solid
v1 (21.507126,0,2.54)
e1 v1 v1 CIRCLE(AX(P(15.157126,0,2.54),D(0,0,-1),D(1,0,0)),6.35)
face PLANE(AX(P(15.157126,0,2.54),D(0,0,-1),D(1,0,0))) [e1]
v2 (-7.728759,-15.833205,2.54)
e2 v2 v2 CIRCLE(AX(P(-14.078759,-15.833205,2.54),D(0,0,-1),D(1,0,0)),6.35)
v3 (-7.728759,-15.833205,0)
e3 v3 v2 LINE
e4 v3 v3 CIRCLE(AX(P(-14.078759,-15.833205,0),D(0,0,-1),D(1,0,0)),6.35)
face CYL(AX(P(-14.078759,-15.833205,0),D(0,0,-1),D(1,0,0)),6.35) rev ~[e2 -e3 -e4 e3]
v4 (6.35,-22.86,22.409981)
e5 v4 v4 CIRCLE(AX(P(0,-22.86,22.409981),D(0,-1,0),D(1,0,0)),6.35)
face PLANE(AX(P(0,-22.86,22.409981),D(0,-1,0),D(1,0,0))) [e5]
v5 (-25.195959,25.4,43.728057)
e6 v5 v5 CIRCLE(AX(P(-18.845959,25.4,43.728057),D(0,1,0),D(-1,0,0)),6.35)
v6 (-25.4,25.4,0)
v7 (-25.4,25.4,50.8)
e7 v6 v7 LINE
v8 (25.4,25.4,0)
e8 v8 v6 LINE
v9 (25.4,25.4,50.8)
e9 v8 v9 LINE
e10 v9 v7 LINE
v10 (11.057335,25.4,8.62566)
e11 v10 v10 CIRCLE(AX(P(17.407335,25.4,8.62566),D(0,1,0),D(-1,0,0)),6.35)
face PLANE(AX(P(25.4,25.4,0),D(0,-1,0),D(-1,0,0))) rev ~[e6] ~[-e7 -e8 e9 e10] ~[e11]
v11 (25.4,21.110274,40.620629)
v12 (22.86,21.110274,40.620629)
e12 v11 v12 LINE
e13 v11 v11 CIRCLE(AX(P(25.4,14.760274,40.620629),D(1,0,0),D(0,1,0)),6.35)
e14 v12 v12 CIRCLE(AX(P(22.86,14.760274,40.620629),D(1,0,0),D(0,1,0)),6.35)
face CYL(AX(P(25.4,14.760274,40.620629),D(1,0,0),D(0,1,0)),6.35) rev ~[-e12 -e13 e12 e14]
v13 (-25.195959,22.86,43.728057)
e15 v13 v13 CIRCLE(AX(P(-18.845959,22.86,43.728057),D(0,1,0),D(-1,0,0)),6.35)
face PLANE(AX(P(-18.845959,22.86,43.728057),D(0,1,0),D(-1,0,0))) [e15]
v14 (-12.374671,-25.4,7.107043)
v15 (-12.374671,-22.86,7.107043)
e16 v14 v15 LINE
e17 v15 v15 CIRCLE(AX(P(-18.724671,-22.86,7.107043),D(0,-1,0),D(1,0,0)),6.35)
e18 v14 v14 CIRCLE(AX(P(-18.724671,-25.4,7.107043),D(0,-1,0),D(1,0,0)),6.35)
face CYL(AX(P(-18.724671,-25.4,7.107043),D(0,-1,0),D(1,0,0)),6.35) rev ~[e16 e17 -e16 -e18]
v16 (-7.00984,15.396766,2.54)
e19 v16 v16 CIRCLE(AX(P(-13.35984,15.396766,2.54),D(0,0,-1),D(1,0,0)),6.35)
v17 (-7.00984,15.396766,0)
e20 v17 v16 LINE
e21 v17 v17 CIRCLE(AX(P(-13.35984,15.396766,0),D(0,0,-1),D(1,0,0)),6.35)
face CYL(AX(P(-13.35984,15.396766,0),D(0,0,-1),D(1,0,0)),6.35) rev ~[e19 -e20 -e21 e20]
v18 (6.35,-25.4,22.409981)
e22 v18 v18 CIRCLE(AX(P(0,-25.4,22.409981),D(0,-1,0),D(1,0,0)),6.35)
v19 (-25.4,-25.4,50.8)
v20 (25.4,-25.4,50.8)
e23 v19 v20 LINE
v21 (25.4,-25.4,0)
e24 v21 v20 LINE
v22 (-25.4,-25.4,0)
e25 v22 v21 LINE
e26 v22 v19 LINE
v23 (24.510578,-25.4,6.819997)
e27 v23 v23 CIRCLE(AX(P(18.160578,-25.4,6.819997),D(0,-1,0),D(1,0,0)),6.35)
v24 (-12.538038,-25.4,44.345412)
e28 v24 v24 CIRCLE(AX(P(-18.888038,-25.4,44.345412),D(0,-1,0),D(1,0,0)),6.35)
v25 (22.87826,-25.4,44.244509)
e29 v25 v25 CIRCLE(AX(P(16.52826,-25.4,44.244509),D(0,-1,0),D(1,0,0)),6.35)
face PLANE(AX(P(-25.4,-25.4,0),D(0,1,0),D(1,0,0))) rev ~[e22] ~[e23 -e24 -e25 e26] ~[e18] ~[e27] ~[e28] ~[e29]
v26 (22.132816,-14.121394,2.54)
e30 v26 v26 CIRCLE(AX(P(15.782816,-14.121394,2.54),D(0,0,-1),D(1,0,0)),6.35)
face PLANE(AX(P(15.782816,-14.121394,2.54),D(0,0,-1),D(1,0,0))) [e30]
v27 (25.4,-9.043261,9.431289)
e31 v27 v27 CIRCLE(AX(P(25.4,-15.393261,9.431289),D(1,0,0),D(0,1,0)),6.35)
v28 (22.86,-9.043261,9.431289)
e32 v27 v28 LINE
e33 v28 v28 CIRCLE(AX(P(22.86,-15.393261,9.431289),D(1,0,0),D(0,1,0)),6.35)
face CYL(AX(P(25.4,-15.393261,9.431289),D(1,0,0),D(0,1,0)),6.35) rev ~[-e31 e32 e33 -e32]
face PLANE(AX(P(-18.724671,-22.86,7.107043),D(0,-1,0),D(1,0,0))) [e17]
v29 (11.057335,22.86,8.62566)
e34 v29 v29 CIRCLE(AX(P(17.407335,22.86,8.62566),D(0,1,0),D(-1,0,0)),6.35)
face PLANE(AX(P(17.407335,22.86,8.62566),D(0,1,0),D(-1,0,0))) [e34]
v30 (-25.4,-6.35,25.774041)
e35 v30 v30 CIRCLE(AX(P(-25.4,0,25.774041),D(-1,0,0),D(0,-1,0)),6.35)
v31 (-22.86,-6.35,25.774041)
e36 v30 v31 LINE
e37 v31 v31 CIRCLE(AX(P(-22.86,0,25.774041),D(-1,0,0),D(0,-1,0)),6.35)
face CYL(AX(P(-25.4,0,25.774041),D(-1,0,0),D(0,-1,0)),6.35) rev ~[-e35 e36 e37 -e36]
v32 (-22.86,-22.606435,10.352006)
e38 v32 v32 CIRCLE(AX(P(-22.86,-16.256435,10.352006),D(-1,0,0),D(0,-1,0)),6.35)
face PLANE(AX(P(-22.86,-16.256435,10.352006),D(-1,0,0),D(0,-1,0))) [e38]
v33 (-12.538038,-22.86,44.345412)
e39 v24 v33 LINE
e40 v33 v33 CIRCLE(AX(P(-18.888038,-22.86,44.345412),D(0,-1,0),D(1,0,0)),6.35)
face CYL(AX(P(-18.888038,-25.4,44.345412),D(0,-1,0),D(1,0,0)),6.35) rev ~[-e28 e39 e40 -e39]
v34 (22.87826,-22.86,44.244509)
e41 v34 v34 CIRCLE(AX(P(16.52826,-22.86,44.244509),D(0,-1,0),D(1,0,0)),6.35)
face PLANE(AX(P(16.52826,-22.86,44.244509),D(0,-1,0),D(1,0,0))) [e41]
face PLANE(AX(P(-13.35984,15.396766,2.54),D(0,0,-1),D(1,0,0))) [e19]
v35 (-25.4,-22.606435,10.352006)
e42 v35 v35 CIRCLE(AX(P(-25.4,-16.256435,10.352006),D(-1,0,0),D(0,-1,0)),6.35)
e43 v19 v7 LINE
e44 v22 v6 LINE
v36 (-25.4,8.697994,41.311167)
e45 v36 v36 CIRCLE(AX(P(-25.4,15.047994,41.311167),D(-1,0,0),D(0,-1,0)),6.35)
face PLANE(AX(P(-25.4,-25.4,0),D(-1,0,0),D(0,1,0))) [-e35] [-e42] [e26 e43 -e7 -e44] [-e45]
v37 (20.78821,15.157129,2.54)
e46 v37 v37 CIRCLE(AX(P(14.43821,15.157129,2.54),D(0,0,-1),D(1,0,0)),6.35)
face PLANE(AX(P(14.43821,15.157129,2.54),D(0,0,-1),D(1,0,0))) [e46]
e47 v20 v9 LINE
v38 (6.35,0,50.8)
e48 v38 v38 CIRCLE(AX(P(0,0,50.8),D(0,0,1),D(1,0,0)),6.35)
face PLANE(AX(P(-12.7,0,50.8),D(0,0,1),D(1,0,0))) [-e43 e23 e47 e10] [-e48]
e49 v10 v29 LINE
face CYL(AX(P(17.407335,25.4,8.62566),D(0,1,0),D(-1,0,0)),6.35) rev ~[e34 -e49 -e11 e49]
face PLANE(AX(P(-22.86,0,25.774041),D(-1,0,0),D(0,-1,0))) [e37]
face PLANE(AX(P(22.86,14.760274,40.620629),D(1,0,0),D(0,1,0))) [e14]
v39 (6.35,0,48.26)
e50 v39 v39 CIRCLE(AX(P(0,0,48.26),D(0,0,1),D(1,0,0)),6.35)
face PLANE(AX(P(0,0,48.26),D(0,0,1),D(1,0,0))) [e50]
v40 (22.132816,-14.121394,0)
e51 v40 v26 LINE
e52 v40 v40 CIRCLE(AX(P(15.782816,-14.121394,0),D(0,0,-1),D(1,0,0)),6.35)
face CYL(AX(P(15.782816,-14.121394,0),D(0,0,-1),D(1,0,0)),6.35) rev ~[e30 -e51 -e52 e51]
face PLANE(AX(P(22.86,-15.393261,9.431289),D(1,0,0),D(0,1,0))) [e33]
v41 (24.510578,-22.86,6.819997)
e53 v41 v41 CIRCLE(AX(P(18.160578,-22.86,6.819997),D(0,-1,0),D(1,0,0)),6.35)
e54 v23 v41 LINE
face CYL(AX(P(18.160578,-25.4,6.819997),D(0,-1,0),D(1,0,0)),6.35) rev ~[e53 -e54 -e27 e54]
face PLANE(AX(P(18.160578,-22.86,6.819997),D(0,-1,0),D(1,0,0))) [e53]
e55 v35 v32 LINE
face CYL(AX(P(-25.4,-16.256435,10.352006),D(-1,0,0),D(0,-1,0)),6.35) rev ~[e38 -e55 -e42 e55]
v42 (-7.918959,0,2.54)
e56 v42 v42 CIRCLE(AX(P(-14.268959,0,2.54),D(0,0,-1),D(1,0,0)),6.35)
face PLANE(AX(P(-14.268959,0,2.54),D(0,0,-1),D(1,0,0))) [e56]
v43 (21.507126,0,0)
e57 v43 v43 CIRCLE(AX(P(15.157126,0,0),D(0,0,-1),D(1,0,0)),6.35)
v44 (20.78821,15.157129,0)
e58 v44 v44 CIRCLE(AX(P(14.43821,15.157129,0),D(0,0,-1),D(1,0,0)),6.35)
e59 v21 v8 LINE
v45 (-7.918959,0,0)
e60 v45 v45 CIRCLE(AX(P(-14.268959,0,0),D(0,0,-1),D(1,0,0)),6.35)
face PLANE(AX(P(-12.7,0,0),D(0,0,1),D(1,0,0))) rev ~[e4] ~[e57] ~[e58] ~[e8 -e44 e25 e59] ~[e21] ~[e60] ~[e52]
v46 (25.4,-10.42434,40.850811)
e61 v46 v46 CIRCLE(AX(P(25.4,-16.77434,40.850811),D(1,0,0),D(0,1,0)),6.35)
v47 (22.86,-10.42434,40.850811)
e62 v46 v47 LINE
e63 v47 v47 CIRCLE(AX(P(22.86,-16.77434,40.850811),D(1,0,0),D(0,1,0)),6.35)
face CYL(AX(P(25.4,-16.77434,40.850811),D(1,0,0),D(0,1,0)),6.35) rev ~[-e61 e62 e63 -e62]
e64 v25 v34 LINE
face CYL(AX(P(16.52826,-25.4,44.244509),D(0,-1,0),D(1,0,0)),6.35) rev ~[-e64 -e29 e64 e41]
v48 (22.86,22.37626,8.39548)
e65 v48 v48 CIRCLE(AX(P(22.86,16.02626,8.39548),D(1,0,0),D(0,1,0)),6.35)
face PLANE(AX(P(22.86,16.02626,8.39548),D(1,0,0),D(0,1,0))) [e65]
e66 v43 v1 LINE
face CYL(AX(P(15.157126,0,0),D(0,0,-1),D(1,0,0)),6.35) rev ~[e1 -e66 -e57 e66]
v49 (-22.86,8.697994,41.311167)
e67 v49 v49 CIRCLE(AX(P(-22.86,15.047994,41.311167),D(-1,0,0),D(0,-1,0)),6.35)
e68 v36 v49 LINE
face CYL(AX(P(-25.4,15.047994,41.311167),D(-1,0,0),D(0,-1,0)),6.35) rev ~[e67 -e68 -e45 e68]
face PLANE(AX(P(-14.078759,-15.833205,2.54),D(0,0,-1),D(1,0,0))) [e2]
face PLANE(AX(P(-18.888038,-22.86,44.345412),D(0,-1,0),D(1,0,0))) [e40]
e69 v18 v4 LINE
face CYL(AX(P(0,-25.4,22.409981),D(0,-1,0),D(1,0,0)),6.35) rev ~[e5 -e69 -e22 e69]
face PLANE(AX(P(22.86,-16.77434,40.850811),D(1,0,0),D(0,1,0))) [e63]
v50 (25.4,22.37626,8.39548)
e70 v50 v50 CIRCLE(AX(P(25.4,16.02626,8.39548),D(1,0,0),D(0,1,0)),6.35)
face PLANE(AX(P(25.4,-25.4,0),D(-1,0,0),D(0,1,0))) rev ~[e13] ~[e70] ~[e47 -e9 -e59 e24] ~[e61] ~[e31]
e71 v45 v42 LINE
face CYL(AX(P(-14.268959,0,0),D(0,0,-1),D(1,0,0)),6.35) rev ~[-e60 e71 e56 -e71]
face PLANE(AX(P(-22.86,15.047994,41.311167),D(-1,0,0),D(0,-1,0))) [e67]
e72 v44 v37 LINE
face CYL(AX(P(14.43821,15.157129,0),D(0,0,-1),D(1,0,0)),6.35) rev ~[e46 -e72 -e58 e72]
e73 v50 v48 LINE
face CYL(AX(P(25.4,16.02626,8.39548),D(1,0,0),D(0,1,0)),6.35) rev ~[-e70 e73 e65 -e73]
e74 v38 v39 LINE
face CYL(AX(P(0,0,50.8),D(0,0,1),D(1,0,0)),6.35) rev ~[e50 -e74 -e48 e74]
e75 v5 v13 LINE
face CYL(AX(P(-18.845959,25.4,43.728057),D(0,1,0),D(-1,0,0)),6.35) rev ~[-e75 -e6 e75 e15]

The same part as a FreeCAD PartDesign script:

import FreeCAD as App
import Part
import Sketcher
Q = App.Units.Quantity

doc = App.newDocument("Part")
body = doc.addObject("PartDesign::Body", "Body")

# Sketch on XY plane
sketch1 = body.newObject("Sketcher::SketchObject", "Sketch")
sketch1.AttachmentSupport = (doc.getObject("XY_Plane"), [""])
sketch1.MapMode = "FlatFace"
sketch1.addGeometry(Part.LineSegment(App.Vector(-25, 25, 0), App.Vector(-25, -25, 0)), False)
sketch1.addGeometry(Part.LineSegment(App.Vector(-25, -25, 0), App.Vector(25, -25, 0)), False)
sketch1.addGeometry(Part.LineSegment(App.Vector(25, -25, 0), App.Vector(25, 25, 0)), False)
sketch1.addGeometry(Part.LineSegment(App.Vector(25, 25, 0), App.Vector(-25, 25, 0)), False)
sketch1.addConstraint(Sketcher.Constraint("Coincident", 0, 2, 1, 1))
sketch1.addConstraint(Sketcher.Constraint("Coincident", 1, 2, 2, 1))
sketch1.addConstraint(Sketcher.Constraint("Coincident", 2, 2, 3, 1))
sketch1.addConstraint(Sketcher.Constraint("Coincident", 3, 2, 0, 1))
sketch1.addConstraint(Sketcher.Constraint("Vertical", 0))
sketch1.addConstraint(Sketcher.Constraint("Horizontal", 1))
sketch1.addConstraint(Sketcher.Constraint("Vertical", 2))
sketch1.addConstraint(Sketcher.Constraint("Horizontal", 3))
sketch1.addConstraint(Sketcher.Constraint("Symmetric", 0, 2, 2, 2, -1, 1))
sketch1.addConstraint(Sketcher.Constraint("Equal", 3, 0))
sketch1.addConstraint(Sketcher.Constraint("DistanceX", 1, 1, 1, 2, Q("2 in")))
pad1 = body.newObject("PartDesign::Pad", "Pad")
pad1.Profile = sketch1
pad1.Length = Q("2 in")

# Sketch on XY plane
sketch2 = body.newObject("Sketcher::SketchObject", "Sketch001")
sketch2.AttachmentSupport = (doc.getObject("XY_Plane"), [""])
sketch2.MapMode = "FlatFace"
sketch2.AttachmentOffset = App.Placement(App.Vector(0, 0, 2 * 25.4), App.Rotation())
sketch2.addGeometry(Part.Circle(App.Vector(0, 0, 0), App.Vector(0, 0, 1), 6), False)
sketch2.addConstraint(Sketcher.Constraint("Coincident", 0, 3, -1, 1))
sketch2.addConstraint(Sketcher.Constraint("Diameter", 0, Q("0.5 in")))
pocket1 = body.newObject("PartDesign::Pocket", "Pocket")
pocket1.Profile = sketch2
pocket1.Length = Q("0.1 in")

# Sketch on XY plane
sketch3 = body.newObject("Sketcher::SketchObject", "Sketch002")
sketch3.AttachmentSupport = (doc.getObject("XY_Plane"), [""])
sketch3.MapMode = "FlatFace"
sketch3.addGeometry(Part.Circle(App.Vector(16, -14, 0), App.Vector(0, 0, 1), 6), False)
sketch3.addGeometry(Part.Circle(App.Vector(-14, -16, 0), App.Vector(0, 0, 1), 6), False)
sketch3.addGeometry(Part.Circle(App.Vector(15, 0, 0), App.Vector(0, 0, 1), 6), False)
sketch3.addGeometry(Part.Circle(App.Vector(-14, 0, 0), App.Vector(0, 0, 1), 6), False)
sketch3.addGeometry(Part.Circle(App.Vector(-13, 15, 0), App.Vector(0, 0, 1), 6), False)
sketch3.addGeometry(Part.Circle(App.Vector(14, 15, 0), App.Vector(0, 0, 1), 6), False)
sketch3.addConstraint(Sketcher.Constraint("Equal", 0, 1))
sketch3.addConstraint(Sketcher.Constraint("Equal", 1, 2))
sketch3.addConstraint(Sketcher.Constraint("Equal", 2, 3))
sketch3.addConstraint(Sketcher.Constraint("Equal", 3, 4))
sketch3.addConstraint(Sketcher.Constraint("Equal", 4, 5))
sketch3.addConstraint(Sketcher.Constraint("PointOnObject", 2, 3, -1))
sketch3.addConstraint(Sketcher.Constraint("PointOnObject", 3, 3, -1))
sketch3.addConstraint(Sketcher.Constraint("Diameter", 0, Q("0.5 in")))
sketch3.addConstraint(Sketcher.Constraint("DistanceX", 3, 3, 1, 3, Q("0.1902 mm")))
sketch3.addConstraint(Sketcher.Constraint("DistanceX", 1, 3, -1, 1, Q("14.078759 mm")))
sketch3.addConstraint(Sketcher.Constraint("DistanceX", 4, 3, -1, 1, Q("13.35984 mm")))
sketch3.addConstraint(Sketcher.Constraint("DistanceX", -1, 1, 5, 3, Q("14.43821 mm")))
sketch3.addConstraint(Sketcher.Constraint("DistanceY", -1, 1, 5, 3, Q("15.157129 mm")))
sketch3.addConstraint(Sketcher.Constraint("DistanceY", 1, 3, 0, 3, Q("1.711811 mm")))
sketch3.addConstraint(Sketcher.Constraint("DistanceX", 2, 3, 0, 3, Q("0.62569 mm")))
sketch3.addConstraint(Sketcher.Constraint("DistanceY", 1, 3, 4, 3, Q("31.229971 mm")))
sketch3.addConstraint(Sketcher.Constraint("DistanceX", -1, 1, 0, 3, Q("15.782816 mm")))
sketch3.addConstraint(Sketcher.Constraint("DistanceY", 0, 3, -1, 1, Q("14.121394 mm")))
pocket2 = body.newObject("PartDesign::Pocket", "Pocket001")
pocket2.Profile = sketch3
pocket2.Length = Q("0.1 in")
pocket2.Reversed = True

# Sketch on XZ plane
sketch4 = body.newObject("Sketcher::SketchObject", "Sketch003")
sketch4.AttachmentSupport = (doc.getObject("XZ_Plane"), [""])
sketch4.MapMode = "FlatFace"
sketch4.AttachmentOffset = App.Placement(App.Vector(0, 0, 1 * 25.4), App.Rotation())
sketch4.addGeometry(Part.Circle(App.Vector(18, 7, 0), App.Vector(0, 0, 1), 6), False)
sketch4.addGeometry(Part.Circle(App.Vector(-19, 7, 0), App.Vector(0, 0, 1), 6), False)
sketch4.addGeometry(Part.Circle(App.Vector(0, 22, 0), App.Vector(0, 0, 1), 6), False)
sketch4.addGeometry(Part.Circle(App.Vector(17, 44, 0), App.Vector(0, 0, 1), 6), False)
sketch4.addGeometry(Part.Circle(App.Vector(-19, 44, 0), App.Vector(0, 0, 1), 6), False)
sketch4.addConstraint(Sketcher.Constraint("Equal", 0, 1))
sketch4.addConstraint(Sketcher.Constraint("Equal", 1, 2))
sketch4.addConstraint(Sketcher.Constraint("Equal", 2, 3))
sketch4.addConstraint(Sketcher.Constraint("Equal", 3, 4))
sketch4.addConstraint(Sketcher.Constraint("PointOnObject", 2, 3, -2))
sketch4.addConstraint(Sketcher.Constraint("Diameter", 0, Q("0.5 in")))
sketch4.addConstraint(Sketcher.Constraint("DistanceX", 1, 3, -1, 1, Q("18.724671 mm")))
sketch4.addConstraint(Sketcher.Constraint("DistanceY", -1, 1, 2, 3, Q("22.409981 mm")))
sketch4.addConstraint(Sketcher.Constraint("DistanceX", -1, 1, 3, 3, Q("16.52826 mm")))
sketch4.addConstraint(Sketcher.Constraint("DistanceY", -1, 1, 3, 3, Q("44.244509 mm")))
sketch4.addConstraint(Sketcher.Constraint("DistanceX", 1, 3, 0, 3, Q("36.885248 mm")))
sketch4.addConstraint(Sketcher.Constraint("DistanceY", 0, 3, 3, 3, Q("37.424512 mm")))
sketch4.addConstraint(Sketcher.Constraint("DistanceY", 2, 3, 4, 3, Q("21.935431 mm")))
sketch4.addConstraint(Sketcher.Constraint("DistanceY", 1, 3, 4, 3, Q("37.238369 mm")))
sketch4.addConstraint(Sketcher.Constraint("DistanceX", 4, 3, -1, 1, Q("18.888038 mm")))
pocket3 = body.newObject("PartDesign::Pocket", "Pocket002")
pocket3.Profile = sketch4
pocket3.Length = Q("0.1 in")

# Sketch on YZ plane
sketch5 = body.newObject("Sketcher::SketchObject", "Sketch004")
sketch5.AttachmentSupport = (doc.getObject("YZ_Plane"), [""])
sketch5.MapMode = "FlatFace"
sketch5.AttachmentOffset = App.Placement(App.Vector(0, 0, 1 * 25.4), App.Rotation())
sketch5.addGeometry(Part.Circle(App.Vector(-17, 41, 0), App.Vector(0, 0, 1), 6), False)
sketch5.addGeometry(Part.Circle(App.Vector(15, 41, 0), App.Vector(0, 0, 1), 6), False)
sketch5.addGeometry(Part.Circle(App.Vector(-15, 9, 0), App.Vector(0, 0, 1), 6), False)
sketch5.addGeometry(Part.Circle(App.Vector(16, 8, 0), App.Vector(0, 0, 1), 6), False)
sketch5.addConstraint(Sketcher.Constraint("Equal", 0, 1))
sketch5.addConstraint(Sketcher.Constraint("Equal", 1, 2))
sketch5.addConstraint(Sketcher.Constraint("Equal", 2, 3))
sketch5.addConstraint(Sketcher.Constraint("Diameter", 0, Q("0.5 in")))
sketch5.addConstraint(Sketcher.Constraint("DistanceX", 0, 3, 3, 3, Q("32.8006 mm")))
sketch5.addConstraint(Sketcher.Constraint("DistanceX", 0, 3, -1, 1, Q("16.77434 mm")))
sketch5.addConstraint(Sketcher.Constraint("DistanceY", -1, 1, 0, 3, Q("40.850811 mm")))
sketch5.addConstraint(Sketcher.Constraint("DistanceY", -1, 1, 1, 3, Q("40.620629 mm")))
sketch5.addConstraint(Sketcher.Constraint("DistanceX", 2, 3, -1, 1, Q("15.393261 mm")))
sketch5.addConstraint(Sketcher.Constraint("DistanceY", -1, 1, 2, 3, Q("9.431289 mm")))
sketch5.addConstraint(Sketcher.Constraint("DistanceY", -1, 1, 3, 3, Q("8.39548 mm")))
sketch5.addConstraint(Sketcher.Constraint("DistanceX", -1, 1, 1, 3, Q("14.760274 mm")))
pocket4 = body.newObject("PartDesign::Pocket", "Pocket003")
pocket4.Profile = sketch5
pocket4.Length = Q("0.1 in")

# Sketch on YZ plane
sketch6 = body.newObject("Sketcher::SketchObject", "Sketch005")
sketch6.AttachmentSupport = (doc.getObject("YZ_Plane"), [""])
sketch6.MapMode = "FlatFace"
sketch6.AttachmentOffset = App.Placement(App.Vector(0, 0, -1 * 25.4), App.Rotation())
sketch6.addGeometry(Part.Circle(App.Vector(0, 26, 0), App.Vector(0, 0, 1), 6), False)
sketch6.addGeometry(Part.Circle(App.Vector(-16, 10, 0), App.Vector(0, 0, 1), 6), False)
sketch6.addGeometry(Part.Circle(App.Vector(15, 41, 0), App.Vector(0, 0, 1), 6), False)
sketch6.addConstraint(Sketcher.Constraint("Equal", 0, 1))
sketch6.addConstraint(Sketcher.Constraint("Equal", 1, 2))
sketch6.addConstraint(Sketcher.Constraint("PointOnObject", 0, 3, -2))
sketch6.addConstraint(Sketcher.Constraint("Diameter", 0, Q("0.5 in")))
sketch6.addConstraint(Sketcher.Constraint("DistanceY", -1, 1, 0, 3, Q("25.774041 mm")))
sketch6.addConstraint(Sketcher.Constraint("DistanceX", 1, 3, 2, 3, Q("31.304429 mm")))
sketch6.addConstraint(Sketcher.Constraint("DistanceY", 1, 3, 2, 3, Q("30.959161 mm")))
sketch6.addConstraint(Sketcher.Constraint("DistanceX", 1, 3, -1, 1, Q("16.256435 mm")))
sketch6.addConstraint(Sketcher.Constraint("DistanceY", -1, 1, 1, 3, Q("10.352006 mm")))
pocket5 = body.newObject("PartDesign::Pocket", "Pocket004")
pocket5.Profile = sketch6
pocket5.Length = Q("0.1 in")
pocket5.Reversed = True

# Sketch on XZ plane
sketch7 = body.newObject("Sketcher::SketchObject", "Sketch006")
sketch7.AttachmentSupport = (doc.getObject("XZ_Plane"), [""])
sketch7.MapMode = "FlatFace"
sketch7.AttachmentOffset = App.Placement(App.Vector(0, 0, -1 * 25.4), App.Rotation())
sketch7.addGeometry(Part.Circle(App.Vector(17, 9, 0), App.Vector(0, 0, 1), 6), False)
sketch7.addGeometry(Part.Circle(App.Vector(-19, 44, 0), App.Vector(0, 0, 1), 6), False)
sketch7.addConstraint(Sketcher.Constraint("Equal", 0, 1))
sketch7.addConstraint(Sketcher.Constraint("Diameter", 0, Q("0.5 in")))
sketch7.addConstraint(Sketcher.Constraint("DistanceY", -1, 1, 0, 3, Q("8.62566 mm")))
sketch7.addConstraint(Sketcher.Constraint("DistanceX", 1, 3, -1, 1, Q("18.845959 mm")))
sketch7.addConstraint(Sketcher.Constraint("DistanceX", -1, 1, 0, 3, Q("17.407335 mm")))
sketch7.addConstraint(Sketcher.Constraint("DistanceY", -1, 1, 1, 3, Q("43.728057 mm")))
pocket6 = body.newObject("PartDesign::Pocket", "Pocket005")
pocket6.Profile = sketch7
pocket6.Length = Q("0.1 in")
pocket6.Reversed = True

doc.recompute()
